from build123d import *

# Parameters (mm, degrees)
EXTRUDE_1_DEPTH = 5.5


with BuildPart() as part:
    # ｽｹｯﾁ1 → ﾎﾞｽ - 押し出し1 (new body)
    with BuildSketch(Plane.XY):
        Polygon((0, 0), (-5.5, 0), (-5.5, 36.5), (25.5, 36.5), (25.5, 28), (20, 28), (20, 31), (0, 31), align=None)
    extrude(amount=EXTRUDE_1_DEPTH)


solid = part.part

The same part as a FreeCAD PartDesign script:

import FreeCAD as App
import Part
import Sketcher
Q = App.Units.Quantity


def add_polygon(sketch, points):
    """Adds a closed chain of lines whose ends are joined by coincident constraints."""
    first, n = sketch.GeometryCount, len(points)
    for a, b in zip(points, points[1:] + points[:1]):
        sketch.addGeometry(Part.LineSegment(App.Vector(*a, 0), App.Vector(*b, 0)), False)
    for i in range(n):
        sketch.addConstraint(Sketcher.Constraint("Coincident", first + i, 2, first + (i + 1) % n, 1))

doc = App.newDocument("Part")
params = doc.addObject("Spreadsheet::Sheet", "Params")
for row, (alias, value) in enumerate([
    ("sketch1_width", "20 mm"),
    ("sketch1_width2", "31 mm"),
    ("sketch1_height", "3 mm"),
    ("sketch1_height2", "8.5 mm"),
    ("pad1_length", "5.5 mm"),
], start=1):
    params.set(f"A{row}", alias)
    params.set(f"B{row}", "=" + value)
    params.setAlias(f"B{row}", alias)

body = doc.addObject("PartDesign::Body", "Body")

# Sketch on XY plane
sketch1 = doc.addObject("Sketcher::SketchObject", "Sketch")
body.addObject(sketch1)
sketch1.AttachmentSupport = (doc.XY_Plane, [""])
sketch1.MapMode = "FlatFace"
add_polygon(sketch1, [(-5.5, 0), (0, 0), (0, 31), (20, 31), (20, 28), (25.5, 28), (25.5, 36.5), (-5.5, 36.5)])  # lines 0-7
sketch1.addConstraint(Sketcher.Constraint("Horizontal", 0))
sketch1.addConstraint(Sketcher.Constraint("Vertical", 1))
sketch1.addConstraint(Sketcher.Constraint("Horizontal", 2))
sketch1.addConstraint(Sketcher.Constraint("Vertical", 3))
sketch1.addConstraint(Sketcher.Constraint("Horizontal", 4))
sketch1.addConstraint(Sketcher.Constraint("Vertical", 5))
sketch1.addConstraint(Sketcher.Constraint("Horizontal", 6))
sketch1.addConstraint(Sketcher.Constraint("Vertical", 7))
sketch1.addConstraint(Sketcher.Constraint("Coincident", 0, 2, -1, 1))
sketch1.addConstraint(Sketcher.Constraint("Equal", 0, 4))
sketch1.addConstraint(Sketcher.Constraint("Equal", 6, 1))
sketch1.addConstraint(Sketcher.Constraint("DistanceX", 2, 1, 2, 2, Q("20 mm")))
sketch1.addConstraint(Sketcher.Constraint("DistanceX", 6, 2, 6, 1, Q("31 mm")))
sketch1.addConstraint(Sketcher.Constraint("DistanceY", 3, 2, 3, 1, Q("3 mm")))
sketch1.addConstraint(Sketcher.Constraint("DistanceY", 5, 1, 5, 2, Q("8.5 mm")))
sketch1.setExpression("Constraints[19]", "Params.sketch1_width")
sketch1.setExpression("Constraints[20]", "Params.sketch1_width2")
sketch1.setExpression("Constraints[21]", "Params.sketch1_height")
sketch1.setExpression("Constraints[22]", "Params.sketch1_height2")
pad1 = doc.addObject("PartDesign::Pad", "Pad")
body.addObject(pad1)
pad1.Profile = sketch1
pad1.setExpression("Length", "Params.pad1_length")

doc.recompute()
